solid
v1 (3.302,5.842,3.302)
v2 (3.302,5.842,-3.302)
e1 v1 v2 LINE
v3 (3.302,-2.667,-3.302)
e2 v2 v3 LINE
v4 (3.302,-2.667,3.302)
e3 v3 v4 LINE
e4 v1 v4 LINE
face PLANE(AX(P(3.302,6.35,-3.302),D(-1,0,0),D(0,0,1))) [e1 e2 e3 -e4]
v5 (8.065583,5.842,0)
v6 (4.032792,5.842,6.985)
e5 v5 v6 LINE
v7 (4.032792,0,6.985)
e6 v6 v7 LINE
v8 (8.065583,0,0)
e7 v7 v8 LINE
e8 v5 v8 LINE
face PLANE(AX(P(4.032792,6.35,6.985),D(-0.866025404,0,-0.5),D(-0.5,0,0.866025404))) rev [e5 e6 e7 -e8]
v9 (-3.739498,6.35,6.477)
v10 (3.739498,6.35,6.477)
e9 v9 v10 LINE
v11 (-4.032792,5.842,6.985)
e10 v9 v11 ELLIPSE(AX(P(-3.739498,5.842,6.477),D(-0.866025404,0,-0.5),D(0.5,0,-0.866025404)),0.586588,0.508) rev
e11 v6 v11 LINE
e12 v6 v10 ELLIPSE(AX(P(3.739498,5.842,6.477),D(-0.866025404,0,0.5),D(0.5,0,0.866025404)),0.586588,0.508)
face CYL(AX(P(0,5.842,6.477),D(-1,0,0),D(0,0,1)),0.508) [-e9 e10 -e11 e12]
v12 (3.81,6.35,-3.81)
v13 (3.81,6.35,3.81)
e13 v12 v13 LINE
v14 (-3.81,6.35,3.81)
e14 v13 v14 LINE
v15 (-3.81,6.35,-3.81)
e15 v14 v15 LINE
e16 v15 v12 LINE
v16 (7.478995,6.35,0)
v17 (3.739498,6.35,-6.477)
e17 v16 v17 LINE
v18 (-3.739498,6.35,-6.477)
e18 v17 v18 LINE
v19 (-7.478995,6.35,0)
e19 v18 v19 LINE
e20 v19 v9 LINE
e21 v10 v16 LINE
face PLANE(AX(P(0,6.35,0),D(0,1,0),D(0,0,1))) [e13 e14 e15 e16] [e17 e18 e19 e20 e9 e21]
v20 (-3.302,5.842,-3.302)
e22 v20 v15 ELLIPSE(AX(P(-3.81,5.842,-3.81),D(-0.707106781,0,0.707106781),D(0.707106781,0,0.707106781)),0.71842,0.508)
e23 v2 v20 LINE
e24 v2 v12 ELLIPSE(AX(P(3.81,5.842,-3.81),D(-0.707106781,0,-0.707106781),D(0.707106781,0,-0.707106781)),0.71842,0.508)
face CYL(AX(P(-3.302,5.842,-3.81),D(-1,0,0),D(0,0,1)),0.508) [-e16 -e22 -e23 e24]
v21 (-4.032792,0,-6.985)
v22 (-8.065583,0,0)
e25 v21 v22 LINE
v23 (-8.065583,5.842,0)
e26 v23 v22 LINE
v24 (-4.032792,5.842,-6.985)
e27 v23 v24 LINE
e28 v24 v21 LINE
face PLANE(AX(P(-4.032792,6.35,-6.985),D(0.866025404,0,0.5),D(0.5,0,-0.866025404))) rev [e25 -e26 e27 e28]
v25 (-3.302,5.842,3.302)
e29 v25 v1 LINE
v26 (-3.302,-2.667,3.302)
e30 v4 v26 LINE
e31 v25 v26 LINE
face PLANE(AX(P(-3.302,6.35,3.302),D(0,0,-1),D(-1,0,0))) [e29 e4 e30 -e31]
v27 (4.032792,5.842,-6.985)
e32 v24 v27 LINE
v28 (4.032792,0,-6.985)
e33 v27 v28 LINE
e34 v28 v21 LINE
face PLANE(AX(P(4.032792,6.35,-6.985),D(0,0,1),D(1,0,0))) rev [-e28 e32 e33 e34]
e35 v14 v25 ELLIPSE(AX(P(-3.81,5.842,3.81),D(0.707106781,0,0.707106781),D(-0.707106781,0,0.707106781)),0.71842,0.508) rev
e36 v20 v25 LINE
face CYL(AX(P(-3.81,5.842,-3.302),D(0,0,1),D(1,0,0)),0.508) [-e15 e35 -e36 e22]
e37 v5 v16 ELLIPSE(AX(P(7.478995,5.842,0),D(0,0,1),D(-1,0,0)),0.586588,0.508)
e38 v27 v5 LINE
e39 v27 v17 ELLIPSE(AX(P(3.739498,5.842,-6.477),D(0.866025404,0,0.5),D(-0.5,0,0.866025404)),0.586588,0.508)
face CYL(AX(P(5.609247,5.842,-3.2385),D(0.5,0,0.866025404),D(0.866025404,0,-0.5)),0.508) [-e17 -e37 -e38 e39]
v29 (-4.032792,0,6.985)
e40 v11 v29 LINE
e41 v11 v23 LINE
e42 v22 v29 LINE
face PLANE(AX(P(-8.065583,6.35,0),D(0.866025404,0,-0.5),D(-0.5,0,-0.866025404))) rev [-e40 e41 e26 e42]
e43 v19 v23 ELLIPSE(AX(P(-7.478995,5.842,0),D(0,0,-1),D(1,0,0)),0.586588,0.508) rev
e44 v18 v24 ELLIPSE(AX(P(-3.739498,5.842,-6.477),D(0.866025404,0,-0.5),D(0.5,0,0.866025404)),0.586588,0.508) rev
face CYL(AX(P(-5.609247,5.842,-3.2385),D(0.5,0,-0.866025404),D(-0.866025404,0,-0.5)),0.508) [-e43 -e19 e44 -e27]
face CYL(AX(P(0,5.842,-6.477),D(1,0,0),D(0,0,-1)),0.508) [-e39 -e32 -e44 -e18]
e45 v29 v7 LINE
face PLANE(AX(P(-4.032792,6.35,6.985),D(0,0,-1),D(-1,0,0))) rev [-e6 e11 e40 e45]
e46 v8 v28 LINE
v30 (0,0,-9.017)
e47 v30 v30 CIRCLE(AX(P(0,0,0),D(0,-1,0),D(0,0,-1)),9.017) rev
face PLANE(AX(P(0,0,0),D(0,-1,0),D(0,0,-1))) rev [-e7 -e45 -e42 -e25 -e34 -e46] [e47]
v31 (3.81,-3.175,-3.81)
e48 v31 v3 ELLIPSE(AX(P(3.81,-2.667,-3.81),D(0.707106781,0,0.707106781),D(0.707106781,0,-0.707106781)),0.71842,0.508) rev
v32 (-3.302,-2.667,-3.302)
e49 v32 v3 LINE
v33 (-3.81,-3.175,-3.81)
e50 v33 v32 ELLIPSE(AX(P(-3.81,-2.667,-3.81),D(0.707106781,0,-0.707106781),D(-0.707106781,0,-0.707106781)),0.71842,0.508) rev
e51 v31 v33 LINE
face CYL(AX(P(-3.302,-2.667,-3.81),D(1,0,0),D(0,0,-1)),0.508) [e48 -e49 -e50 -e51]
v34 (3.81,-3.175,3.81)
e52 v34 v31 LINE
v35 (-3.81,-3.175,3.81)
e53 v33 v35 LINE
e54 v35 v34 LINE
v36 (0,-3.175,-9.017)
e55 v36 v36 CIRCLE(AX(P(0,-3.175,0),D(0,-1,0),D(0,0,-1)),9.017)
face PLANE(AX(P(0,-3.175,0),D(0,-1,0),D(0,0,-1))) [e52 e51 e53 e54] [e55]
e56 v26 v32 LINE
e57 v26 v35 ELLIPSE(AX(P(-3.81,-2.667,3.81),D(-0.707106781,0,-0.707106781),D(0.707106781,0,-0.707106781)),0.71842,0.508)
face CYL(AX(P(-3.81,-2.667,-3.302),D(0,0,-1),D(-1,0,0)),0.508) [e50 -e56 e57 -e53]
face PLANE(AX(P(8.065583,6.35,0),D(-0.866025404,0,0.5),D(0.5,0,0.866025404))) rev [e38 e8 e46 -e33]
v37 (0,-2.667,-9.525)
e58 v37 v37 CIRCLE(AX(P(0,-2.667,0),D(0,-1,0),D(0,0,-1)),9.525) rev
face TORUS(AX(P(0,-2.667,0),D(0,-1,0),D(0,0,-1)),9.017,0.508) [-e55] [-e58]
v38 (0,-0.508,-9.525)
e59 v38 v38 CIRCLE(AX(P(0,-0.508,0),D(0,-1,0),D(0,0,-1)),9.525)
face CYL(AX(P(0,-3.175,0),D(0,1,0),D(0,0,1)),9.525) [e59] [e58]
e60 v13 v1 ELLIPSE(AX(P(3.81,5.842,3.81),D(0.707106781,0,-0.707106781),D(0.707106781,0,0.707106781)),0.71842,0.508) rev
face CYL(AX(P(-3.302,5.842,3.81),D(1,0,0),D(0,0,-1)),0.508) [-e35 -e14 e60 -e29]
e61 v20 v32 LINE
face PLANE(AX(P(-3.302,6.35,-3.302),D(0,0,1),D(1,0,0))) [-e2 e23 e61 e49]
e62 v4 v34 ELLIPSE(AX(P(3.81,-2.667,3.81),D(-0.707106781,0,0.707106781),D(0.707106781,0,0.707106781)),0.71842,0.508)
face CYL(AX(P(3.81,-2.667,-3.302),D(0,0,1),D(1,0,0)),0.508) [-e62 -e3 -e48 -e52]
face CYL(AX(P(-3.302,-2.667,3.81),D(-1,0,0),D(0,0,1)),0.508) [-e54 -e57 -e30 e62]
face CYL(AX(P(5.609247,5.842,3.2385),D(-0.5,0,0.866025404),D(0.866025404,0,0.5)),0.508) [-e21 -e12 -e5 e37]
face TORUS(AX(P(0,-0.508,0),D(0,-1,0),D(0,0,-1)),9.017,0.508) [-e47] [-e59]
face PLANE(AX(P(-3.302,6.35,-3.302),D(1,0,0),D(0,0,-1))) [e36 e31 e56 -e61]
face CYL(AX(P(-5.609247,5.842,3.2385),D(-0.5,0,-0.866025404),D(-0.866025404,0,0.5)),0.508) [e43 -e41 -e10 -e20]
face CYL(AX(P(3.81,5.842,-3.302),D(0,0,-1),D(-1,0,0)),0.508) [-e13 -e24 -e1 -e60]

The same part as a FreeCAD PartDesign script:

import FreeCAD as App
import Part
import Sketcher
Q = App.Units.Quantity


def edges_at(feature, points):
    """Names of the edges that pass closest to the given points."""
    edges = feature.Shape.Edges
    near = lambda p: min(range(len(edges)), key=lambda i: edges[i].distToShape(Part.Vertex(*p))[0])
    return sorted({f"Edge{near(p) + 1}" for p in points})

doc = App.newDocument("Part")
body = doc.addObject("PartDesign::Body", "Body")

# Sketch on XZ plane
sketch1 = body.newObject("Sketcher::SketchObject", "Sketch")
sketch1.AttachmentSupport = (doc.getObject("XZ_Plane"), [""])
sketch1.MapMode = "FlatFace"
sketch1.addGeometry([
    Part.LineSegment(App.Vector(8, 0, 0), App.Vector(4, -7, 0)),  # 0
    Part.LineSegment(App.Vector(4, -7, 0), App.Vector(-4, -7, 0)),  # 1
    Part.LineSegment(App.Vector(-4, -7, 0), App.Vector(-8, 0, 0)),  # 2
    Part.LineSegment(App.Vector(-8, 0, 0), App.Vector(-4, 7, 0)),  # 3
    Part.LineSegment(App.Vector(-4, 7, 0), App.Vector(4, 7, 0)),  # 4
    Part.LineSegment(App.Vector(4, 7, 0), App.Vector(8, 0, 0)),  # 5
    Part.LineSegment(App.Vector(3, 3, 0), App.Vector(-3, 3, 0)),  # 6
    Part.LineSegment(App.Vector(-3, 3, 0), App.Vector(-3, -3, 0)),  # 7
    Part.LineSegment(App.Vector(-3, -3, 0), App.Vector(3, -3, 0)),  # 8
    Part.LineSegment(App.Vector(3, -3, 0), App.Vector(3, 3, 0)),  # 9
], False)
sketch1.addConstraint([
    Sketcher.Constraint("Coincident", 0, 2, 1, 1),
    Sketcher.Constraint("Coincident", 1, 2, 2, 1),
    Sketcher.Constraint("Coincident", 2, 2, 3, 1),
    Sketcher.Constraint("Coincident", 3, 2, 4, 1),
    Sketcher.Constraint("Coincident", 4, 2, 5, 1),
    Sketcher.Constraint("Coincident", 5, 2, 0, 1),
    Sketcher.Constraint("Coincident", 6, 2, 7, 1),
    Sketcher.Constraint("Coincident", 7, 2, 8, 1),
    Sketcher.Constraint("Coincident", 8, 2, 9, 1),
    Sketcher.Constraint("Coincident", 9, 2, 6, 1),
    Sketcher.Constraint("Horizontal", 1),
    Sketcher.Constraint("Horizontal", 4),
    Sketcher.Constraint("Horizontal", 6),
    Sketcher.Constraint("Vertical", 7),
    Sketcher.Constraint("Horizontal", 8),
    Sketcher.Constraint("Vertical", 9),
    Sketcher.Constraint("Symmetric", 0, 2, 3, 2, -1, 1),
    Sketcher.Constraint("Symmetric", 2, 2, 5, 2, -1, 1),
    Sketcher.Constraint("Symmetric", 6, 2, 8, 2, -1, 1),
    Sketcher.Constraint("PointOnObject", 2, 2, -1),
    Sketcher.Constraint("Parallel", 2, 5),
    Sketcher.Constraint("Vertical", 1, 2, 3, 2),
    Sketcher.Constraint("Equal", 8, 7),
    Sketcher.Constraint("Angle", 0, Q("-120 deg")),
    Sketcher.Constraint("DistanceX", 6, 2, 6, 1, Q("0.26 in")),
    Sketcher.Constraint("DistanceY", 1, 2, 3, 2, Q("0.55 in")),
    Sketcher.Constraint("DistanceX", 1, 2, 1, 1, 8.065583),
])
pad1 = body.newObject("PartDesign::Pad", "Pad")
pad1.Profile = sketch1
pad1.Length = Q("0.25 in")
pad1.Reversed = True

# Sketch on XZ plane
sketch2 = body.newObject("Sketcher::SketchObject", "Sketch001")
sketch2.AttachmentSupport = (doc.getObject("XZ_Plane"), [""])
sketch2.MapMode = "FlatFace"
sketch2.addGeometry([
    Part.Circle(App.Vector(0, 0, 0), App.Vector(0, 0, 1), 10),  # 0
    Part.LineSegment(App.Vector(3, -3, 0), App.Vector(-3, -3, 0)),  # 1
    Part.LineSegment(App.Vector(-3, -3, 0), App.Vector(-3, 3, 0)),  # 2
    Part.LineSegment(App.Vector(-3, 3, 0), App.Vector(3, 3, 0)),  # 3
    Part.LineSegment(App.Vector(3, 3, 0), App.Vector(3, -3, 0)),  # 4
], False)
sketch2.addConstraint([
    Sketcher.Constraint("Coincident", 1, 2, 2, 1),
    Sketcher.Constraint("Coincident", 2, 2, 3, 1),
    Sketcher.Constraint("Coincident", 3, 2, 4, 1),
    Sketcher.Constraint("Coincident", 4, 2, 1, 1),
    Sketcher.Constraint("Horizontal", 1),
    Sketcher.Constraint("Vertical", 2),
    Sketcher.Constraint("Horizontal", 3),
    Sketcher.Constraint("Vertical", 4),
    Sketcher.Constraint("Coincident", 0, 3, -1, 1),
    Sketcher.Constraint("Symmetric", 1, 2, 3, 2, -1, 1),
    Sketcher.Constraint("Equal", 3, 2),
    Sketcher.Constraint("Diameter", 0, Q("0.75 in")),
    Sketcher.Constraint("DistanceX", 1, 2, 1, 1, Q("0.26 in")),
])
pad2 = body.newObject("PartDesign::Pad", "Pad001")
pad2.Profile = sketch2
pad2.Length = Q("0.125 in")
doc.recompute()

fillet = body.newObject("PartDesign::Fillet", "Fillet")
fillet.Base = (pad2, edges_at(pad2, [
    (0, 6.35, -6.985),
    (-6.049, 6.35, -3.493),
    (-6.049, 6.35, 3.493),
    (3.302, 6.35, 0),
    (0, 6.35, -3.302),
    (-3.302, 6.35, 0),
    (0, 6.35, 3.302),
    (0, 6.35, 6.985),
    (0, -3.175, 9.525),
    (0, 0, 9.525),
    (3.302, -3.175, 0),
    (0, -3.175, 3.302),
    (-3.302, -3.175, 0),
    (0, -3.175, -3.302),
    (6.049, 6.35, 3.493),
    (6.049, 6.35, -3.493),
]))
fillet.Radius = Q("0.02 in")

doc.recompute()
